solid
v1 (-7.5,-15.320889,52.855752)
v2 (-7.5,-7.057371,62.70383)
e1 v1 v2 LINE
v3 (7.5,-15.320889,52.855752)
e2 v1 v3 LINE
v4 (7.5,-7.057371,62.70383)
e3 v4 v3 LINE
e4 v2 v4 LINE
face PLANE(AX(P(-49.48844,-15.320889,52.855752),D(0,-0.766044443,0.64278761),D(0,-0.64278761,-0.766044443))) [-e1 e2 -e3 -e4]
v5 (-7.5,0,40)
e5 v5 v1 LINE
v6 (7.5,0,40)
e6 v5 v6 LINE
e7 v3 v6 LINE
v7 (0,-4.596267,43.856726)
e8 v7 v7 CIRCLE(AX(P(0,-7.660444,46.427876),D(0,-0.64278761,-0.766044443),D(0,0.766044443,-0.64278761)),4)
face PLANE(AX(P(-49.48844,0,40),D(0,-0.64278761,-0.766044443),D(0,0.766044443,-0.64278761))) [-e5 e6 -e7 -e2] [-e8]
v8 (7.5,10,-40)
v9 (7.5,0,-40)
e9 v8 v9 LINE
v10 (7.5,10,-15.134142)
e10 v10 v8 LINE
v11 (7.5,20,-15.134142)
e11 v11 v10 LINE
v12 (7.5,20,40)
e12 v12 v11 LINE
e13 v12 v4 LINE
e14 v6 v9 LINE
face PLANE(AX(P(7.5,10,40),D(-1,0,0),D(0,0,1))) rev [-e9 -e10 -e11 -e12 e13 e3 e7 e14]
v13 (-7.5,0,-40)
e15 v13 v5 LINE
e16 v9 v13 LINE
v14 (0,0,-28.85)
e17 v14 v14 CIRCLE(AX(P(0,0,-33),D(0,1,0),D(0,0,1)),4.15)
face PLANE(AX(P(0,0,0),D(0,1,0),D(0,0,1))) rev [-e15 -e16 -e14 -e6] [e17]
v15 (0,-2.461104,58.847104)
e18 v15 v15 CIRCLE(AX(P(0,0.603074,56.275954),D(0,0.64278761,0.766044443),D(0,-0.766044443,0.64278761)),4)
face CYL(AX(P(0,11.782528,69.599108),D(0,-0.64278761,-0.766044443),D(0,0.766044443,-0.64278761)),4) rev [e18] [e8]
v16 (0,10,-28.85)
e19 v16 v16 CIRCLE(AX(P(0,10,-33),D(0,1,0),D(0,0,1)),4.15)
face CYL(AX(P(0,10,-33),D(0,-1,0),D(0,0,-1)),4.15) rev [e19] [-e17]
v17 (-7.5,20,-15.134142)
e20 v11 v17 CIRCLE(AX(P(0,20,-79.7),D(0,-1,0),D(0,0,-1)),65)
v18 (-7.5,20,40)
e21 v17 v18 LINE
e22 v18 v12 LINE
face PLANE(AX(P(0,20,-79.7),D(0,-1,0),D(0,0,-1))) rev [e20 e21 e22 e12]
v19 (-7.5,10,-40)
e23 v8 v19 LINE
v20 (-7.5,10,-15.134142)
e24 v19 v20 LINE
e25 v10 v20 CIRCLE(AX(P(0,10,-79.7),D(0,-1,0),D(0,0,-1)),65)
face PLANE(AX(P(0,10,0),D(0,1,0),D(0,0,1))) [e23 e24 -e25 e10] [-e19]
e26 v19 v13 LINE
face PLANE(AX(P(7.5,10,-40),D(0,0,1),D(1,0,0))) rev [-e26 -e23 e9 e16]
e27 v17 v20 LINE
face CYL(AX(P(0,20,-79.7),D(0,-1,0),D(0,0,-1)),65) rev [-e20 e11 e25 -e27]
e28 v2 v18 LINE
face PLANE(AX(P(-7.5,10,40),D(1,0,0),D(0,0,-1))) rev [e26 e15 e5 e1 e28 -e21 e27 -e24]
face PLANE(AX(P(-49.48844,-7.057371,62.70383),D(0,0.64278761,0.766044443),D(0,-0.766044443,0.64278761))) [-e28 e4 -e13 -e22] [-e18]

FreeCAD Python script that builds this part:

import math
import FreeCAD as App
import Part
import Sketcher
Q = App.Units.Quantity

doc = App.newDocument("Part")
body = doc.addObject("PartDesign::Body", "Body")

sketch1 = body.newObject("Sketcher::SketchObject", "Sketch")
sketch1.AttachmentSupport = (doc.getObject("XZ_Plane"), [""])
sketch1.MapMode = "FlatFace"
sketch1.addGeometry(Part.LineSegment(App.Vector(-7.5, -40, 0), App.Vector(-7.5, 40, 0)), False)
sketch1.addGeometry(Part.LineSegment(App.Vector(-7.5, 40, 0), App.Vector(7.5, 40, 0)), False)
sketch1.addGeometry(Part.LineSegment(App.Vector(7.5, 40, 0), App.Vector(7.5, -40, 0)), False)
sketch1.addGeometry(Part.LineSegment(App.Vector(7.5, -40, 0), App.Vector(-7.5, -40, 0)), False)
sketch1.addGeometry(Part.Circle(App.Vector(0, -33, 0), App.Vector(0, 0, 1), 4.2), False)
sketch1.addConstraint(Sketcher.Constraint("Coincident", 0, 2, 1, 1))
sketch1.addConstraint(Sketcher.Constraint("Coincident", 1, 2, 2, 1))
sketch1.addConstraint(Sketcher.Constraint("Coincident", 2, 2, 3, 1))
sketch1.addConstraint(Sketcher.Constraint("Coincident", 3, 2, 0, 1))
sketch1.addConstraint(Sketcher.Constraint("Vertical", 0))
sketch1.addConstraint(Sketcher.Constraint("Horizontal", 1))
sketch1.addConstraint(Sketcher.Constraint("Vertical", 2))
sketch1.addConstraint(Sketcher.Constraint("Horizontal", 3))
sketch1.addConstraint(Sketcher.Constraint("Symmetric", 0, 2, 2, 2, -1, 1))
sketch1.addConstraint(Sketcher.Constraint("PointOnObject", 4, 3, -2))
sketch1.addConstraint(Sketcher.Constraint("Diameter", 4, Q("8.3 mm")))
sketch1.addConstraint(Sketcher.Constraint("DistanceX", 1, 1, 1, 2, Q("15 mm")))
sketch1.addConstraint(Sketcher.Constraint("DistanceY", 0, 1, 0, 2, Q("80 mm")))
sketch1.addConstraint(Sketcher.Constraint("DistanceY", 4, 3, -1, 1, Q("33 mm")))
pad1 = body.newObject("PartDesign::Pad", "Pad")
pad1.Profile = sketch1
pad1.Length = 10
pad1.Reversed = True

sketch2 = body.newObject("Sketcher::SketchObject", "Sketch001")
sketch2.AttachmentSupport = (doc.getObject("XZ_Plane"), [""])
sketch2.MapMode = "FlatFace"
sketch2.AttachmentOffset = App.Placement(App.Vector(0, 0, -10), App.Rotation())
sketch2.addGeometry(Part.LineSegment(App.Vector(8, 40, 0), App.Vector(8, -15, 0)), False)
sketch2.addGeometry(Part.ArcOfCircle(Part.Circle(App.Vector(0, -80, 0), App.Vector(0, 0, 1), 65), math.radians(83.37), math.radians(96.63)), False)
sketch2.addGeometry(Part.LineSegment(App.Vector(-8, -15, 0), App.Vector(-8, 40, 0)), False)
sketch2.addGeometry(Part.LineSegment(App.Vector(-8, 40, 0), App.Vector(8, 40, 0)), False)
sketch2.addConstraint(Sketcher.Constraint("Coincident", 0, 2, 1, 1))
sketch2.addConstraint(Sketcher.Constraint("Coincident", 1, 2, 2, 1))
sketch2.addConstraint(Sketcher.Constraint("Coincident", 2, 2, 3, 1))
sketch2.addConstraint(Sketcher.Constraint("Coincident", 3, 2, 0, 1))
sketch2.addConstraint(Sketcher.Constraint("Vertical", 0))
sketch2.addConstraint(Sketcher.Constraint("Vertical", 2))
sketch2.addConstraint(Sketcher.Constraint("Horizontal", 3))
sketch2.addConstraint(Sketcher.Constraint("Symmetric", 0, 2, 1, 2, -2))
sketch2.addConstraint(Sketcher.Constraint("Radius", 1, Q("65 mm")))
sketch2.addConstraint(Sketcher.Constraint("DistanceX", 3, 1, 3, 2, Q("15 mm")))
sketch2.addConstraint(Sketcher.Constraint("DistanceY", -1, 1, 2, 2, Q("40 mm")))
sketch2.addConstraint(Sketcher.Constraint("DistanceY", 1, 3, -1, 1, Q("79.7 mm")))
pad2 = body.newObject("PartDesign::Pad", "Pad001")
pad2.Profile = sketch2
pad2.Length = 10
pad2.Reversed = True

sketch3 = body.newObject("Sketcher::SketchObject", "Sketch002")
sketch3.AttachmentSupport = (doc.getObject("YZ_Plane"), [""])
sketch3.MapMode = "FlatFace"
sketch3.AttachmentOffset = App.Placement(App.Vector(0, 0, 7.5), App.Rotation())
sketch3.addGeometry(Part.LineSegment(App.Vector(-15, 53, 0), App.Vector(0, 40, 0)), False)
sketch3.addGeometry(Part.LineSegment(App.Vector(0, 40, 0), App.Vector(20, 40, 0)), False)
sketch3.addGeometry(Part.LineSegment(App.Vector(20, 40, 0), App.Vector(-7, 63, 0)), False)
sketch3.addGeometry(Part.LineSegment(App.Vector(-7, 63, 0), App.Vector(-15, 53, 0)), False)
sketch3.addConstraint(Sketcher.Constraint("Coincident", 0, 2, 1, 1))
sketch3.addConstraint(Sketcher.Constraint("Coincident", 1, 2, 2, 1))
sketch3.addConstraint(Sketcher.Constraint("Coincident", 2, 2, 3, 1))
sketch3.addConstraint(Sketcher.Constraint("Coincident", 3, 2, 0, 1))
sketch3.addConstraint(Sketcher.Constraint("Horizontal", 1))
sketch3.addConstraint(Sketcher.Constraint("PointOnObject", 0, 2, -2))
sketch3.addConstraint(Sketcher.Constraint("Parallel", 0, 2))
sketch3.addConstraint(Sketcher.Constraint("Perpendicular", 2, 3))
sketch3.addConstraint(Sketcher.Constraint("DistanceX", 1, 1, 1, 2, Q("20 mm")))
sketch3.addConstraint(Sketcher.Constraint("Angle", 0, Q("-40 deg")))
sketch3.addConstraint(Sketcher.Constraint("Distance", 0, Q("20 mm")))
sketch3.addConstraint(Sketcher.Constraint("DistanceY", -1, 1, 0, 2, Q("40 mm")))
pad3 = body.newObject("PartDesign::Pad", "Pad002")
pad3.Profile = sketch3
pad3.Length = 15
pad3.Reversed = True

sketch4 = body.newObject("Sketcher::SketchObject", "Sketch003")
sketch4.Placement = App.Placement(App.Vector(0, 19.696155, 23.472964), App.Rotation(App.Vector(-1, 0, 0), App.Vector(0, 0.766044443, -0.64278761), App.Vector(0, -0.64278761, -0.766044443), "ZXY"))
sketch4.addGeometry(Part.Circle(App.Vector(0, -35.7, 0), App.Vector(0, 0, 1), 4), False)
sketch4.addConstraint(Sketcher.Constraint("PointOnObject", 0, 3, -2))
sketch4.addConstraint(Sketcher.Constraint("Diameter", 0, Q("8 mm")))
sketch4.addConstraint(Sketcher.Constraint("DistanceY", 0, 3, -1, 1, Q("35.711504 mm")))
pocket1 = body.newObject("PartDesign::Pocket", "Pocket")
pocket1.Profile = sketch4
pocket1.Type = "ThroughAll"

doc.recompute()
